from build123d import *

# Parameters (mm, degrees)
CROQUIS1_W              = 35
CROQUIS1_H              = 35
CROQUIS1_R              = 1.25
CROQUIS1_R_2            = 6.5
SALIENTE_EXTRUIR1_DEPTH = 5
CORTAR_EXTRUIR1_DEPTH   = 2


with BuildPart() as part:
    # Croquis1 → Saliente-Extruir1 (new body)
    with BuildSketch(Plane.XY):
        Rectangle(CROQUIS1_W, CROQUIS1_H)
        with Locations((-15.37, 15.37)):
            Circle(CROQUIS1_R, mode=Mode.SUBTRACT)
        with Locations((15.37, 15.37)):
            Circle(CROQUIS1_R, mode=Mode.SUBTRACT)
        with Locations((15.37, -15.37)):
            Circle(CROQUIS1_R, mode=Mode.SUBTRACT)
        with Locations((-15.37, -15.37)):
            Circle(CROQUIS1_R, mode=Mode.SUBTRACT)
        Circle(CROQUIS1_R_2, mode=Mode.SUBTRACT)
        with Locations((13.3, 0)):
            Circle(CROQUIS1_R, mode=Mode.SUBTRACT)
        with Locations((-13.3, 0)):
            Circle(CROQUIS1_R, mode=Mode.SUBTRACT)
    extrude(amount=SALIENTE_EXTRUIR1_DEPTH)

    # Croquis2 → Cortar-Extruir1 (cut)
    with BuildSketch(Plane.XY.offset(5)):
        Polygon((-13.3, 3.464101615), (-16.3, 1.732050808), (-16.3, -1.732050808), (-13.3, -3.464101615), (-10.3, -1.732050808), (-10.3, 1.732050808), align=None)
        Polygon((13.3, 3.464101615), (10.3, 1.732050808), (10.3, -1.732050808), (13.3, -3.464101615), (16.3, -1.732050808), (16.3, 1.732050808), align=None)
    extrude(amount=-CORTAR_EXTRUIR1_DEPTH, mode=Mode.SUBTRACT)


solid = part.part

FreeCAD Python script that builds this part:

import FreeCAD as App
import Part
import Sketcher

V = App.Vector
Q = App.Units.Quantity


def add_polygon(sketch, points):
    """Adds a closed chain of lines whose ends are joined by coincident constraints."""
    first, n = sketch.GeometryCount, len(points)
    for a, b in zip(points, points[1:] + points[:1]):
        sketch.addGeometry(Part.LineSegment(App.Vector(*a, 0), App.Vector(*b, 0)), False)
    for i in range(n):
        sketch.addConstraint(Sketcher.Constraint("Coincident", first + i, 2, first + (i + 1) % n, 1))

doc = App.newDocument("Part")
body = doc.addObject("PartDesign::Body", "Body")

# Sketch on XY plane
sketch1 = body.newObject("Sketcher::SketchObject", "Sketch")
sketch1.AttachmentSupport = (doc.getObject("XY_Plane"), [""])
sketch1.MapMode = "FlatFace"
add_polygon(sketch1, [(-17.5, 17.5), (-17.5, -17.5), (17.5, -17.5), (17.5, 17.5)])  # lines 0-3
sketch1.addGeometry(Part.Circle(V(-15.4, -15.4, 0), V(0, 0, 1), 1.2), False)  # 4
sketch1.addGeometry(Part.Circle(V(15.4, -15.4, 0), V(0, 0, 1), 1.2), False)  # 5
sketch1.addGeometry(Part.Circle(V(-13.3, 0, 0), V(0, 0, 1), 1.2), False)  # 6
sketch1.addGeometry(Part.Circle(V(-15.4, 15.4, 0), V(0, 0, 1), 1.2), False)  # 7
sketch1.addGeometry(Part.Circle(V(0, 0, 0), V(0, 0, 1), 6.5), False)  # 8
sketch1.addGeometry(Part.Circle(V(13.3, 0, 0), V(0, 0, 1), 1.2), False)  # 9
sketch1.addGeometry(Part.Circle(V(15.4, 15.4, 0), V(0, 0, 1), 1.2), False)  # 10
sketch1.addConstraint([
    Sketcher.Constraint("Vertical", 0),
    Sketcher.Constraint("Horizontal", 1),
    Sketcher.Constraint("Vertical", 2),
    Sketcher.Constraint("Horizontal", 3),
    Sketcher.Constraint("Coincident", 8, 3, -1, 1),
    Sketcher.Constraint("Equal", 4, 5),
    Sketcher.Constraint("Equal", 5, 6),
    Sketcher.Constraint("Equal", 6, 7),
    Sketcher.Constraint("Equal", 7, 9),
    Sketcher.Constraint("Equal", 9, 10),
    Sketcher.Constraint("Symmetric", 5, 3, 7, 3, -1, 1),
    Sketcher.Constraint("Symmetric", 6, 3, 9, 3, -1, 1),
    Sketcher.Constraint("Symmetric", 4, 3, 10, 3, -1, 1),
    Sketcher.Constraint("Symmetric", 0, 2, 2, 2, -1, 1),
    Sketcher.Constraint("Symmetric", 4, 3, 5, 3, -2),
    Sketcher.Constraint("PointOnObject", 6, 3, -1),
    Sketcher.Constraint("Equal", 3, 0),
    Sketcher.Constraint("Diameter", 8, 13.0),
    Sketcher.Constraint("Diameter", 4, 2.5),
    Sketcher.Constraint("DistanceX", 1, 1, 1, 2, 35.0),
    Sketcher.Constraint("DistanceX", 6, 3, -1, 1, 13.3),
    Sketcher.Constraint("DistanceX", 4, 3, -1, 1, 15.37),
    Sketcher.Constraint("DistanceY", 4, 3, -1, 1, 15.37),
])
pad1 = body.newObject("PartDesign::Pad", "Pad")
pad1.Profile = sketch1
pad1.Length = 5

# Sketch on XY plane
sketch2 = body.newObject("Sketcher::SketchObject", "Sketch001")
sketch2.AttachmentSupport = (doc.getObject("XY_Plane"), [""])
sketch2.MapMode = "FlatFace"
sketch2.AttachmentOffset = App.Placement(V(0, 0, 5), App.Rotation())
add_polygon(sketch2, [(-13.3, 3.5), (-16.3, 1.7), (-16.3, -1.7), (-13.3, -3.5), (-10.3, -1.7), (-10.3, 1.7)])  # lines 0-5
add_polygon(sketch2, [(13.3, 3.5), (10.3, 1.7), (10.3, -1.7), (13.3, -3.5), (16.3, -1.7), (16.3, 1.7)])  # lines 6-11
sketch2.addConstraint([
    Sketcher.Constraint("Vertical", 1),
    Sketcher.Constraint("Vertical", 4),
    Sketcher.Constraint("Vertical", 7),
    Sketcher.Constraint("Vertical", 10),
    Sketcher.Constraint("Symmetric", 3, 2, 6, 2, -1, 1),
    Sketcher.Constraint("Symmetric", 5, 2, 8, 2, -1, 1),
    Sketcher.Constraint("Symmetric", 0, 2, 9, 2, -1, 1),
    Sketcher.Constraint("Symmetric", 2, 2, 11, 2, -1, 1),
    Sketcher.Constraint("Symmetric", 2, 2, 8, 2, -2),
    Sketcher.Constraint("Parallel", 0, 3),
    Sketcher.Constraint("Parallel", 2, 5),
    Sketcher.Constraint("Parallel", 5, 8),
    Sketcher.Constraint("Parallel", 8, 11),
    Sketcher.Constraint("Horizontal", 1, 2, 3, 2),
    Sketcher.Constraint("Horizontal", 0, 2, 4, 2),
    Sketcher.Constraint("Angle", 0, Q("-150 deg")),
    Sketcher.Constraint("DistanceX", 1, 2, 2, 2, 3.0),
    Sketcher.Constraint("DistanceX", 0, 2, -1, 1, 16.3),
    Sketcher.Constraint("DistanceY", 1, 2, 1, 1, 3.464102),
])
pocket1 = body.newObject("PartDesign::Pocket", "Pocket")
pocket1.Profile = sketch2
pocket1.Length = 2

doc.recompute()
